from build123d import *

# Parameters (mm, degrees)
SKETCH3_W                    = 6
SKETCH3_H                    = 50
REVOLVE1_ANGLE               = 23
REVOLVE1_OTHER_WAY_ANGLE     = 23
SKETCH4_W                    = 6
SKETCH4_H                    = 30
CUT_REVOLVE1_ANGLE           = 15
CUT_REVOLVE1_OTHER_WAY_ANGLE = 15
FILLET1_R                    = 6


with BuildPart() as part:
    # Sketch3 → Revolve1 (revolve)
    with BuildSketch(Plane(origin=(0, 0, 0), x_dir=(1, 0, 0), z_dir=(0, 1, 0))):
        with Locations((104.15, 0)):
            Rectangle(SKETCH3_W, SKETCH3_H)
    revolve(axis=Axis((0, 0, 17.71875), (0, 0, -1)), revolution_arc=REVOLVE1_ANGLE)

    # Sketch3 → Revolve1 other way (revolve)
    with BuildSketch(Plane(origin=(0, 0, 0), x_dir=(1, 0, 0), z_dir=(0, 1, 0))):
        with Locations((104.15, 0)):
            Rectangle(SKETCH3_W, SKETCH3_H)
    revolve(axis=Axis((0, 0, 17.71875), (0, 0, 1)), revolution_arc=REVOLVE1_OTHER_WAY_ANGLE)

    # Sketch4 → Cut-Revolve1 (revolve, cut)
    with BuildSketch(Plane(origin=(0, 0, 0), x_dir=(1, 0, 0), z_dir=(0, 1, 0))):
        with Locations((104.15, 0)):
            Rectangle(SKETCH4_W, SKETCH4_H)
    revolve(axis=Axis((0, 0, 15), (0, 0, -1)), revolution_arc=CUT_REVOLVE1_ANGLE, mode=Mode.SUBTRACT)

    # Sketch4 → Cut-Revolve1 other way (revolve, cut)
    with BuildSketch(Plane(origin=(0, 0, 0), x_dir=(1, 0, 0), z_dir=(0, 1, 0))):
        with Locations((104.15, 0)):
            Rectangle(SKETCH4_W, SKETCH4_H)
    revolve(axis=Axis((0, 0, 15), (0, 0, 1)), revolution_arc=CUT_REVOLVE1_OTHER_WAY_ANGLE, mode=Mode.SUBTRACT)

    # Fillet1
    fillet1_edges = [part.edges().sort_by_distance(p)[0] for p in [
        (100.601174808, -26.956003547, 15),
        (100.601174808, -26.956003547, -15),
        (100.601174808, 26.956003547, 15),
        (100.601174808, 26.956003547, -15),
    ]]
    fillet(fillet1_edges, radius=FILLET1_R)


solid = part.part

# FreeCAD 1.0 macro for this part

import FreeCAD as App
import Part
import Sketcher

V = App.Vector
Q = App.Units.Quantity


def edges_at(feature, points):
    """Names of the edges that pass closest to the given points."""
    edges = feature.Shape.Edges
    near = lambda p: min(range(len(edges)), key=lambda i: edges[i].distToShape(Part.Vertex(*p))[0])
    return sorted({f"Edge{near(p) + 1}" for p in points})


def add_polygon(sketch, points):
    """Adds a closed chain of lines whose ends are joined by coincident constraints."""
    first, n = sketch.GeometryCount, len(points)
    for a, b in zip(points, points[1:] + points[:1]):
        sketch.addGeometry(Part.LineSegment(App.Vector(*a, 0), App.Vector(*b, 0)), False)
    for i in range(n):
        sketch.addConstraint(Sketcher.Constraint("Coincident", first + i, 2, first + (i + 1) % n, 1))

doc = App.newDocument("Part")
body = doc.addObject("PartDesign::Body", "Body")

sketch1 = body.newObject("Sketcher::SketchObject", "Sketch")
sketch1.AttachmentSupport = (doc.getObject("XZ_Plane"), [""])
sketch1.MapMode = "FlatFace"
add_polygon(sketch1, [(101, -25), (101, 25), (107, 25), (107, -25)])
sketch1.addConstraint([
    Sketcher.Constraint("Vertical", 0),
    Sketcher.Constraint("Horizontal", 1),
    Sketcher.Constraint("Vertical", 2),
    Sketcher.Constraint("Horizontal", 3),
    Sketcher.Constraint("DistanceX", 1, 1, 1, 2, Q("6 mm")),
    Sketcher.Constraint("DistanceY", 0, 1, 0, 2, Q("50 mm")),
    Sketcher.Constraint("DistanceY", -1, 1, 0, 2, Q("25 mm")),
    Sketcher.Constraint("DistanceX", -1, 1, 0, 2, Q("101.15 mm")),
])
revolution = body.newObject("PartDesign::Revolution", "Revolution")
revolution.Profile = sketch1
revolution.ReferenceAxis = (sketch1, ["V_Axis"])
revolution.Angle = 23
revolution.Reversed = True

sketch2 = body.newObject("Sketcher::SketchObject", "Sketch001")
sketch2.AttachmentSupport = (doc.getObject("XZ_Plane"), [""])
sketch2.MapMode = "FlatFace"
add_polygon(sketch2, [(101, -25), (101, 25), (107, 25), (107, -25)])
sketch2.addConstraint([
    Sketcher.Constraint("Vertical", 0),
    Sketcher.Constraint("Horizontal", 1),
    Sketcher.Constraint("Vertical", 2),
    Sketcher.Constraint("Horizontal", 3),
    Sketcher.Constraint("DistanceX", 1, 1, 1, 2, Q("6 mm")),
    Sketcher.Constraint("DistanceY", 0, 1, 0, 2, Q("50 mm")),
    Sketcher.Constraint("DistanceY", -1, 1, 0, 2, Q("25 mm")),
    Sketcher.Constraint("DistanceX", -1, 1, 0, 2, Q("101.15 mm")),
])
revolution2 = body.newObject("PartDesign::Revolution", "Revolution001")
revolution2.Profile = sketch2
revolution2.ReferenceAxis = (sketch2, ["V_Axis"])
revolution2.Angle = 23

sketch3 = body.newObject("Sketcher::SketchObject", "Sketch002")
sketch3.AttachmentSupport = (doc.getObject("XZ_Plane"), [""])
sketch3.MapMode = "FlatFace"
add_polygon(sketch3, [(101, -15), (101, 15), (107, 15), (107, -15)])
sketch3.addConstraint([
    Sketcher.Constraint("Vertical", 0),
    Sketcher.Constraint("Horizontal", 1),
    Sketcher.Constraint("Vertical", 2),
    Sketcher.Constraint("Horizontal", 3),
    Sketcher.Constraint("DistanceX", 1, 1, 1, 2, Q("6 mm")),
    Sketcher.Constraint("DistanceY", 0, 1, 0, 2, Q("30 mm")),
    Sketcher.Constraint("DistanceY", -1, 1, 0, 2, Q("15 mm")),
    Sketcher.Constraint("DistanceX", -1, 1, 0, 2, Q("101.15 mm")),
])
groove = body.newObject("PartDesign::Groove", "Groove")
groove.Profile = sketch3
groove.ReferenceAxis = (sketch3, ["V_Axis"])
groove.Angle = 15
groove.Reversed = True

sketch4 = body.newObject("Sketcher::SketchObject", "Sketch003")
sketch4.AttachmentSupport = (doc.getObject("XZ_Plane"), [""])
sketch4.MapMode = "FlatFace"
add_polygon(sketch4, [(101, -15), (101, 15), (107, 15), (107, -15)])
sketch4.addConstraint([
    Sketcher.Constraint("Vertical", 0),
    Sketcher.Constraint("Horizontal", 1),
    Sketcher.Constraint("Vertical", 2),
    Sketcher.Constraint("Horizontal", 3),
    Sketcher.Constraint("DistanceX", 1, 1, 1, 2, Q("6 mm")),
    Sketcher.Constraint("DistanceY", 0, 1, 0, 2, Q("30 mm")),
    Sketcher.Constraint("DistanceY", -1, 1, 0, 2, Q("15 mm")),
    Sketcher.Constraint("DistanceX", -1, 1, 0, 2, Q("101.15 mm")),
])
groove2 = body.newObject("PartDesign::Groove", "Groove001")
groove2.Profile = sketch4
groove2.ReferenceAxis = (sketch4, ["V_Axis"])
groove2.Angle = 15
doc.recompute()

fillet = body.newObject("PartDesign::Fillet", "Fillet")
fillet.Base = (groove2, edges_at(groove2, [
    (100.601, -26.956, 15),
    (100.601, -26.956, -15),
    (100.601, 26.956, 15),
    (100.601, 26.956, -15),
]))
fillet.Radius = 6

doc.recompute()
